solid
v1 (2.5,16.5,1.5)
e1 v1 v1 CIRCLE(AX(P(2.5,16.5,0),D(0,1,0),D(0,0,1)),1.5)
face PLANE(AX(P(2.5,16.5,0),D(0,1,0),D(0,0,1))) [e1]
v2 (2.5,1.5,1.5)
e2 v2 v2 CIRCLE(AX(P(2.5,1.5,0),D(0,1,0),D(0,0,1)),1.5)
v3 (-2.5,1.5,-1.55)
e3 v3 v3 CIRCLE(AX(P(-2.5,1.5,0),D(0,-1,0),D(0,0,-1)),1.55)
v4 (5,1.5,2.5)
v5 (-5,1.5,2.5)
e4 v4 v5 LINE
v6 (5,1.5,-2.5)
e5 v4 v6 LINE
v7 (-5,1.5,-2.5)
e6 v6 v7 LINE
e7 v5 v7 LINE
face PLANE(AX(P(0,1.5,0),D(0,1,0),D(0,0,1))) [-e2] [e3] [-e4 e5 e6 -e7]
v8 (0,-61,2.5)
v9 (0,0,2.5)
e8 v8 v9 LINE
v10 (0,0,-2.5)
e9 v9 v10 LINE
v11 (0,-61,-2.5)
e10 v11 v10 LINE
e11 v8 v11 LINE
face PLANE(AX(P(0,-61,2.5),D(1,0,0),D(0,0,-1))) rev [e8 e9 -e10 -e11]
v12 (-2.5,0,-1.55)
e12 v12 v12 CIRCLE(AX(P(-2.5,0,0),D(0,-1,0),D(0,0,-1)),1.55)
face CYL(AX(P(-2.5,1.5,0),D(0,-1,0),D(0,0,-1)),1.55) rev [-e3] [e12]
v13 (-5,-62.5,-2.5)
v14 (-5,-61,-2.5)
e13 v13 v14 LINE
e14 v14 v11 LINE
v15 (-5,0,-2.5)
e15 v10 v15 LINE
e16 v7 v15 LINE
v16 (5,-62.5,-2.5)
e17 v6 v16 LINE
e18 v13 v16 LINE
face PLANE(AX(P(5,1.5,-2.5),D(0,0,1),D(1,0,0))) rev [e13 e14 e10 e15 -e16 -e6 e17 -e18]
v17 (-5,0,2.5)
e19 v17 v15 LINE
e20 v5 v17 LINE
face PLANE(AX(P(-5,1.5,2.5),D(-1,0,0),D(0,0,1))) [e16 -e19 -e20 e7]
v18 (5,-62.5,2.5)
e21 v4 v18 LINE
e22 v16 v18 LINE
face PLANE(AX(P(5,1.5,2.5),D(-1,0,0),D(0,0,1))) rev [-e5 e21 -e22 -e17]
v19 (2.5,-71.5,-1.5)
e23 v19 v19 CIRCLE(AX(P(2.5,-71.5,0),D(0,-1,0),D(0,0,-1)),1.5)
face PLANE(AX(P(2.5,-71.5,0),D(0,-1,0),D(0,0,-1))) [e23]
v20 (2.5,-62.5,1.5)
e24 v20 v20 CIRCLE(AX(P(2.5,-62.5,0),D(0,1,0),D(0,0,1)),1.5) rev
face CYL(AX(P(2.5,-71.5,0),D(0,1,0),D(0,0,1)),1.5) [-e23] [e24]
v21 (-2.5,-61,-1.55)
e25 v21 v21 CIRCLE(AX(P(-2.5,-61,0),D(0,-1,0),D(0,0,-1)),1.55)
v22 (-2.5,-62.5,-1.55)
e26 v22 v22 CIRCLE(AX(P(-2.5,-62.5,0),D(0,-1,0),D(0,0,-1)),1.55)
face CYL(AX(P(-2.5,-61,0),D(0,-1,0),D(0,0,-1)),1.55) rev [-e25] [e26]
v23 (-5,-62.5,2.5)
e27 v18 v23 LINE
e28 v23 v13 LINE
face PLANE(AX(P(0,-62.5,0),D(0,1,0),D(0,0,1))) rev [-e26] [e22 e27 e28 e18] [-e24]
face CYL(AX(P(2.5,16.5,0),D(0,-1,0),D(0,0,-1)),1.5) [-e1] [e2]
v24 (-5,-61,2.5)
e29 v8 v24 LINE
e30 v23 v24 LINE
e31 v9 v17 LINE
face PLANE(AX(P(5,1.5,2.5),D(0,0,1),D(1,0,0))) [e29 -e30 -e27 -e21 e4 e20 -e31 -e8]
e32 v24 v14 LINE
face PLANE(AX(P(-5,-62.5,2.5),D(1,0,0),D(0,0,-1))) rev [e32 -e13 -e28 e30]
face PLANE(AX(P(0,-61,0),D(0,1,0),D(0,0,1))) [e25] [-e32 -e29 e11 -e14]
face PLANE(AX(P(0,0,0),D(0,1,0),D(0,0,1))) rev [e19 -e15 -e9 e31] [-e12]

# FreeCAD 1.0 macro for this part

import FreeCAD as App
import Part
import Sketcher

V = App.Vector


def add_polygon(sketch, points):
    """Adds a closed chain of lines whose ends are joined by coincident constraints."""
    first, n = sketch.GeometryCount, len(points)
    for a, b in zip(points, points[1:] + points[:1]):
        sketch.addGeometry(Part.LineSegment(App.Vector(*a, 0), App.Vector(*b, 0)), False)
    for i in range(n):
        sketch.addConstraint(Sketcher.Constraint("Coincident", first + i, 2, first + (i + 1) % n, 1))

doc = App.newDocument("Part")
body = doc.addObject("PartDesign::Body", "Body")

# Sketch on XZ plane
sketch1 = doc.addObject("Sketcher::SketchObject", "Sketch")
body.addObject(sketch1)
sketch1.AttachmentSupport = (doc.XZ_Plane, [""])
sketch1.MapMode = "FlatFace"
add_polygon(sketch1, [(-5, -2), (-5, 2), (5, 2), (5, -2)])  # lines 0-3
sketch1.addConstraint(Sketcher.Constraint("Vertical", 0))
sketch1.addConstraint(Sketcher.Constraint("Horizontal", 1))
sketch1.addConstraint(Sketcher.Constraint("Vertical", 2))
sketch1.addConstraint(Sketcher.Constraint("Horizontal", 3))
sketch1.addConstraint(Sketcher.Constraint("Symmetric", 0, 2, 2, 2, -1, 1))
sketch1.addConstraint(Sketcher.Constraint("DistanceX", 1, 1, 1, 2, 10.0))
sketch1.addConstraint(Sketcher.Constraint("DistanceY", 0, 1, 0, 2, 5.0))
pad1 = doc.addObject("PartDesign::Pad", "Pad")
body.addObject(pad1)
pad1.Profile = sketch1
pad1.Length = 1.5
pad1.Reversed = True

# Sketch on XZ plane
sketch2 = doc.addObject("Sketcher::SketchObject", "Sketch001")
body.addObject(sketch2)
sketch2.AttachmentSupport = (doc.XZ_Plane, [""])
sketch2.MapMode = "FlatFace"
sketch2.addGeometry(Part.Circle(V(-2.5, 0, 0), V(0, 0, 1), 1.6), False)
sketch2.addConstraint(Sketcher.Constraint("PointOnObject", 0, 3, -1))
sketch2.addConstraint(Sketcher.Constraint("Diameter", 0, 3.1))
sketch2.addConstraint(Sketcher.Constraint("DistanceX", 0, 3, -1, 1, 2.5))
pocket1 = doc.addObject("PartDesign::Pocket", "Pocket")
body.addObject(pocket1)
pocket1.Profile = sketch2
pocket1.Length = 1.5

# Sketch on XZ plane
sketch3 = doc.addObject("Sketcher::SketchObject", "Sketch002")
body.addObject(sketch3)
sketch3.AttachmentSupport = (doc.XZ_Plane, [""])
sketch3.MapMode = "FlatFace"
add_polygon(sketch3, [(0, 2), (0, -2), (5, -2), (5, 2)])  # lines 0-3
sketch3.addConstraint(Sketcher.Constraint("Vertical", 0))
sketch3.addConstraint(Sketcher.Constraint("Horizontal", 1))
sketch3.addConstraint(Sketcher.Constraint("Vertical", 2))
sketch3.addConstraint(Sketcher.Constraint("Horizontal", 3))
sketch3.addConstraint(Sketcher.Constraint("Symmetric", 0, 2, 3, 2, -1, 1))
sketch3.addConstraint(Sketcher.Constraint("Equal", 3, 0))
sketch3.addConstraint(Sketcher.Constraint("DistanceX", 1, 1, 1, 2, 5.0))
pad2 = doc.addObject("PartDesign::Pad", "Pad001")
body.addObject(pad2)
pad2.Profile = sketch3
pad2.Length = 61

# Sketch on XZ plane
sketch4 = doc.addObject("Sketcher::SketchObject", "Sketch003")
body.addObject(sketch4)
sketch4.AttachmentSupport = (doc.XZ_Plane, [""])
sketch4.MapMode = "FlatFace"
sketch4.AttachmentOffset = App.Placement(V(0, 0, 61), App.Rotation())
add_polygon(sketch4, [(-5, 2), (-5, -2), (5, -2), (5, 2)])  # lines 0-3
sketch4.addConstraint(Sketcher.Constraint("Vertical", 0))
sketch4.addConstraint(Sketcher.Constraint("Horizontal", 1))
sketch4.addConstraint(Sketcher.Constraint("Vertical", 2))
sketch4.addConstraint(Sketcher.Constraint("Horizontal", 3))
sketch4.addConstraint(Sketcher.Constraint("Symmetric", 0, 2, 2, 2, -1, 1))
sketch4.addConstraint(Sketcher.Constraint("DistanceX", 1, 1, 1, 2, 10.0))
sketch4.addConstraint(Sketcher.Constraint("DistanceY", 0, 2, 0, 1, 5.0))
pad3 = doc.addObject("PartDesign::Pad", "Pad002")
body.addObject(pad3)
pad3.Profile = sketch4
pad3.Length = 1.5

# Sketch on XZ plane
sketch5 = doc.addObject("Sketcher::SketchObject", "Sketch004")
body.addObject(sketch5)
sketch5.AttachmentSupport = (doc.XZ_Plane, [""])
sketch5.MapMode = "FlatFace"
sketch5.AttachmentOffset = App.Placement(V(0, 0, 62.5), App.Rotation())
sketch5.addGeometry(Part.Circle(V(-2.5, 0, 0), V(0, 0, 1), 1.6), False)
sketch5.addConstraint(Sketcher.Constraint("PointOnObject", 0, 3, -1))
sketch5.addConstraint(Sketcher.Constraint("Diameter", 0, 3.1))
sketch5.addConstraint(Sketcher.Constraint("DistanceX", 0, 3, -1, 1, 2.5))
pocket2 = doc.addObject("PartDesign::Pocket", "Pocket001")
body.addObject(pocket2)
pocket2.Profile = sketch5
pocket2.Length = 1.5

# Sketch on XZ plane
sketch6 = doc.addObject("Sketcher::SketchObject", "Sketch005")
body.addObject(sketch6)
sketch6.AttachmentSupport = (doc.XZ_Plane, [""])
sketch6.MapMode = "FlatFace"
sketch6.AttachmentOffset = App.Placement(V(0, 0, -1.5), App.Rotation())
sketch6.addGeometry(Part.Circle(V(2.5, 0, 0), V(0, 0, 1), 1.5), False)
sketch6.addConstraint(Sketcher.Constraint("PointOnObject", 0, 3, -1))
sketch6.addConstraint(Sketcher.Constraint("Diameter", 0, 3.0))
sketch6.addConstraint(Sketcher.Constraint("DistanceX", -1, 1, 0, 3, 2.5))
pad4 = doc.addObject("PartDesign::Pad", "Pad003")
body.addObject(pad4)
pad4.Profile = sketch6
pad4.Length = 15
pad4.Reversed = True

# Sketch on XZ plane
sketch7 = doc.addObject("Sketcher::SketchObject", "Sketch006")
body.addObject(sketch7)
sketch7.AttachmentSupport = (doc.XZ_Plane, [""])
sketch7.MapMode = "FlatFace"
sketch7.AttachmentOffset = App.Placement(V(0, 0, 71.5), App.Rotation())
sketch7.addGeometry(Part.Circle(V(2.5, 0, 0), V(0, 0, 1), 1.5), False)
sketch7.addConstraint(Sketcher.Constraint("PointOnObject", 0, 3, -1))
sketch7.addConstraint(Sketcher.Constraint("Diameter", 0, 3.0))
sketch7.addConstraint(Sketcher.Constraint("DistanceX", -1, 1, 0, 3, 2.5))
pad5 = doc.addObject("PartDesign::Pad", "Pad004")
body.addObject(pad5)
pad5.Profile = sketch7
pad5.Length = 9
pad5.Reversed = True

doc.recompute()
